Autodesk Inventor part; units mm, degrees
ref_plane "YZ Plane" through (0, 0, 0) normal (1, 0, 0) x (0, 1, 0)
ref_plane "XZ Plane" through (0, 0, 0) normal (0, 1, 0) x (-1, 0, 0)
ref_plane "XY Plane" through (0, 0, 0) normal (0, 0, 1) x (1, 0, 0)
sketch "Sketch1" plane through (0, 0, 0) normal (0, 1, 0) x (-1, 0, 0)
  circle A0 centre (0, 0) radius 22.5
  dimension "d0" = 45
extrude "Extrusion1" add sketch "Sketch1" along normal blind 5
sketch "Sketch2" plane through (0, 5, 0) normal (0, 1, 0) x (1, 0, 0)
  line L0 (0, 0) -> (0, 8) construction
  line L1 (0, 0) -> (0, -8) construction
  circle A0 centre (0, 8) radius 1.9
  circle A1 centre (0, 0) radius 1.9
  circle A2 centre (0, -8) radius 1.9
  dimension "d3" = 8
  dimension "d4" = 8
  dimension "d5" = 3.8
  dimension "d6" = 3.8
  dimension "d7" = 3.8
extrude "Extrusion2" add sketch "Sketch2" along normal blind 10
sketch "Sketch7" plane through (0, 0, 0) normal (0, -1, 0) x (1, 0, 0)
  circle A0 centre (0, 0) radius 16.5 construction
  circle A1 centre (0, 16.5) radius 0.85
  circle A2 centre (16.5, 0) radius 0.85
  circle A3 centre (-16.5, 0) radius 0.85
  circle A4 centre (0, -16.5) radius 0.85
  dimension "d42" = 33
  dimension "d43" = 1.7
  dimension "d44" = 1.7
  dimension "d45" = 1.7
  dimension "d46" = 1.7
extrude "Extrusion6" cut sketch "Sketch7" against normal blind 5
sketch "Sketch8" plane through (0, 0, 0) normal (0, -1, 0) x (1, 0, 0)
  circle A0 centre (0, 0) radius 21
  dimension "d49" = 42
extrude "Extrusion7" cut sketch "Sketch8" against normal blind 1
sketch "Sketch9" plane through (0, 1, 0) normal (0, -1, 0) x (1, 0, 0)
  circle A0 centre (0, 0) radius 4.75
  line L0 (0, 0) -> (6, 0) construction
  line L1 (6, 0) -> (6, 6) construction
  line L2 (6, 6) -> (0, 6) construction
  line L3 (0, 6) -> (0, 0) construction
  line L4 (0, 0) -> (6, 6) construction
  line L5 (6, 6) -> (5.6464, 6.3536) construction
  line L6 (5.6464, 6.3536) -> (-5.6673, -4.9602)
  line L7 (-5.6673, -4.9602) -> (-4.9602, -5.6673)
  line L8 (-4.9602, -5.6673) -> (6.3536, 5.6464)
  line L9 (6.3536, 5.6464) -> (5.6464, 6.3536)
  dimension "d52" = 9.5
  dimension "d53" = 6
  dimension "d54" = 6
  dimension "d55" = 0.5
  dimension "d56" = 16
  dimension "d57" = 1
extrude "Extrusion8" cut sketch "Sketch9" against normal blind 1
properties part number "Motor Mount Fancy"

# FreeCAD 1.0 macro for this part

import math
import FreeCAD as App
import Part
import Sketcher
Q = App.Units.Quantity

doc = App.newDocument("Part")
body = doc.addObject("PartDesign::Body", "Body")

# Sketch on XZ plane
sketch1 = body.newObject("Sketcher::SketchObject", "Sketch")
sketch1.AttachmentSupport = (doc.getObject("XZ_Plane"), [""])
sketch1.MapMode = "FlatFace"
sketch1.addGeometry(Part.Circle(App.Vector(0, 0, 0), App.Vector(0, 0, 1), 22.5), False)
sketch1.addConstraint([
    Sketcher.Constraint("Coincident", 0, 3, -1, 1),
    Sketcher.Constraint("Diameter", 0, 45.0),
])
pad1 = body.newObject("PartDesign::Pad", "Pad")
pad1.Profile = sketch1
pad1.Length = 5
pad1.Reversed = True

# Sketch on XZ plane
sketch2 = body.newObject("Sketcher::SketchObject", "Sketch001")
sketch2.AttachmentSupport = (doc.getObject("XZ_Plane"), [""])
sketch2.MapMode = "FlatFace"
sketch2.AttachmentOffset = App.Placement(App.Vector(0, 0, -5), App.Rotation())
sketch2.addGeometry([
    Part.Circle(App.Vector(0, -8, 0), App.Vector(0, 0, 1), 1.9),
    Part.Circle(App.Vector(0, 0, 0), App.Vector(0, 0, 1), 1.9),
    Part.Circle(App.Vector(0, 8, 0), App.Vector(0, 0, 1), 1.9),
], False)
sketch2.addConstraint([
    Sketcher.Constraint("Coincident", 1, 3, -1, 1),
    Sketcher.Constraint("Equal", 0, 1),
    Sketcher.Constraint("Equal", 1, 2),
    Sketcher.Constraint("Symmetric", 0, 3, 2, 3, -1, 1),
    Sketcher.Constraint("PointOnObject", 0, 3, -2),
    Sketcher.Constraint("Diameter", 0, 3.8),
    Sketcher.Constraint("DistanceY", 0, 3, -1, 1, 8.0),
])
pad2 = body.newObject("PartDesign::Pad", "Pad001")
pad2.Profile = sketch2
pad2.Length = 10
pad2.Reversed = True

# Sketch on XZ plane
sketch3 = body.newObject("Sketcher::SketchObject", "Sketch002")
sketch3.AttachmentSupport = (doc.getObject("XZ_Plane"), [""])
sketch3.MapMode = "FlatFace"
sketch3.addGeometry([
    Part.Circle(App.Vector(0, 16.5, 0), App.Vector(0, 0, 1), 0.85),
    Part.Circle(App.Vector(16.5, 0, 0), App.Vector(0, 0, 1), 0.85),
    Part.Circle(App.Vector(-16.5, 0, 0), App.Vector(0, 0, 1), 0.85),
    Part.Circle(App.Vector(0, -16.5, 0), App.Vector(0, 0, 1), 0.85),
], False)
sketch3.addConstraint([
    Sketcher.Constraint("Equal", 0, 1),
    Sketcher.Constraint("Equal", 1, 2),
    Sketcher.Constraint("Equal", 2, 3),
    Sketcher.Constraint("Symmetric", 1, 3, 2, 3, -1, 1),
    Sketcher.Constraint("Symmetric", 0, 3, 3, 3, -1, 1),
    Sketcher.Constraint("PointOnObject", 0, 3, -2),
    Sketcher.Constraint("PointOnObject", 1, 3, -1),
    Sketcher.Constraint("Diameter", 0, 1.7),
    Sketcher.Constraint("DistanceX", 2, 3, 1, 3, 33.0),
    Sketcher.Constraint("DistanceY", 3, 3, 0, 3, 33.0),
])
pocket1 = body.newObject("PartDesign::Pocket", "Pocket")
pocket1.Profile = sketch3
pocket1.Length = 5

# Sketch on XZ plane
sketch4 = body.newObject("Sketcher::SketchObject", "Sketch003")
sketch4.AttachmentSupport = (doc.getObject("XZ_Plane"), [""])
sketch4.MapMode = "FlatFace"
sketch4.addGeometry(Part.Circle(App.Vector(0, 0, 0), App.Vector(0, 0, 1), 21), False)
sketch4.addConstraint([
    Sketcher.Constraint("Coincident", 0, 3, -1, 1),
    Sketcher.Constraint("Diameter", 0, 42.0),
])
pocket2 = body.newObject("PartDesign::Pocket", "Pocket001")
pocket2.Profile = sketch4
pocket2.Length = 1

# Sketch on XZ plane
sketch5 = body.newObject("Sketcher::SketchObject", "Sketch004")
sketch5.AttachmentSupport = (doc.getObject("XZ_Plane"), [""])
sketch5.MapMode = "FlatFace"
sketch5.AttachmentOffset = App.Placement(App.Vector(0, 0, -1), App.Rotation())
sketch5.addGeometry([
    Part.ArcOfCircle(Part.Circle(App.Vector(0, 0, 0), App.Vector(0, 0, 1), 4.75), math.radians(-128.95758), math.radians(38.957074)),  # 0
    Part.LineSegment(App.Vector(3.693682, 2.986505, 0), App.Vector(6.3536, 5.6464, 0)),  # 1
    Part.LineSegment(App.Vector(6.3536, 5.6464, 0), App.Vector(5.6464, 6.3536, 0)),  # 2
    Part.LineSegment(App.Vector(5.6464, 6.3536, 0), App.Vector(2.986505, 3.693682, 0)),  # 3
    Part.ArcOfCircle(Part.Circle(App.Vector(0, 0, 0), App.Vector(0, 0, 1), 4.75), math.radians(51.042926), math.radians(218.95758)),  # 4
    Part.LineSegment(App.Vector(-3.693655, -2.986538, 0), App.Vector(-5.6673, -4.9602, 0)),  # 5
    Part.LineSegment(App.Vector(-5.6673, -4.9602, 0), App.Vector(-4.9602, -5.6673, 0)),  # 6
    Part.LineSegment(App.Vector(-4.9602, -5.6673, 0), App.Vector(-2.986538, -3.693655, 0)),  # 7
], False)
sketch5.addConstraint([
    Sketcher.Constraint("Coincident", 0, 2, 1, 1),
    Sketcher.Constraint("Coincident", 1, 2, 2, 1),
    Sketcher.Constraint("Coincident", 2, 2, 3, 1),
    Sketcher.Constraint("Coincident", 3, 2, 4, 1),
    Sketcher.Constraint("Coincident", 4, 2, 5, 1),
    Sketcher.Constraint("Coincident", 5, 2, 6, 1),
    Sketcher.Constraint("Coincident", 6, 2, 7, 1),
    Sketcher.Constraint("Coincident", 7, 2, 0, 1),
    Sketcher.Constraint("Coincident", 0, 3, -1, 1),
    Sketcher.Constraint("Coincident", 4, 3, -1, 1),
    Sketcher.Constraint("Equal", 0, 4),
    Sketcher.Constraint("Perpendicular", 1, 2),
    Sketcher.Constraint("Perpendicular", 2, 3),
    Sketcher.Constraint("Parallel", 3, 5),
    Sketcher.Constraint("Perpendicular", 5, 6),
    Sketcher.Constraint("Perpendicular", 6, 7),
    Sketcher.Constraint("Equal", 1, 3),
    Sketcher.Constraint("Equal", 2, 6),
    Sketcher.Constraint("Equal", 5, 7),
    Sketcher.Constraint("Radius", 0, 4.75),
    Sketcher.Constraint("Distance", 6, 1.0),
    Sketcher.Constraint("Angle", 1, Q("44.9997 deg")),
    Sketcher.Constraint("DistanceX", 0, 2, 1, 2, 2.66),
    Sketcher.Constraint("DistanceY", 5, 2, 3, 2, 8.654),
])
pocket3 = body.newObject("PartDesign::Pocket", "Pocket002")
pocket3.Profile = sketch5
pocket3.Length = 1

doc.recompute()
